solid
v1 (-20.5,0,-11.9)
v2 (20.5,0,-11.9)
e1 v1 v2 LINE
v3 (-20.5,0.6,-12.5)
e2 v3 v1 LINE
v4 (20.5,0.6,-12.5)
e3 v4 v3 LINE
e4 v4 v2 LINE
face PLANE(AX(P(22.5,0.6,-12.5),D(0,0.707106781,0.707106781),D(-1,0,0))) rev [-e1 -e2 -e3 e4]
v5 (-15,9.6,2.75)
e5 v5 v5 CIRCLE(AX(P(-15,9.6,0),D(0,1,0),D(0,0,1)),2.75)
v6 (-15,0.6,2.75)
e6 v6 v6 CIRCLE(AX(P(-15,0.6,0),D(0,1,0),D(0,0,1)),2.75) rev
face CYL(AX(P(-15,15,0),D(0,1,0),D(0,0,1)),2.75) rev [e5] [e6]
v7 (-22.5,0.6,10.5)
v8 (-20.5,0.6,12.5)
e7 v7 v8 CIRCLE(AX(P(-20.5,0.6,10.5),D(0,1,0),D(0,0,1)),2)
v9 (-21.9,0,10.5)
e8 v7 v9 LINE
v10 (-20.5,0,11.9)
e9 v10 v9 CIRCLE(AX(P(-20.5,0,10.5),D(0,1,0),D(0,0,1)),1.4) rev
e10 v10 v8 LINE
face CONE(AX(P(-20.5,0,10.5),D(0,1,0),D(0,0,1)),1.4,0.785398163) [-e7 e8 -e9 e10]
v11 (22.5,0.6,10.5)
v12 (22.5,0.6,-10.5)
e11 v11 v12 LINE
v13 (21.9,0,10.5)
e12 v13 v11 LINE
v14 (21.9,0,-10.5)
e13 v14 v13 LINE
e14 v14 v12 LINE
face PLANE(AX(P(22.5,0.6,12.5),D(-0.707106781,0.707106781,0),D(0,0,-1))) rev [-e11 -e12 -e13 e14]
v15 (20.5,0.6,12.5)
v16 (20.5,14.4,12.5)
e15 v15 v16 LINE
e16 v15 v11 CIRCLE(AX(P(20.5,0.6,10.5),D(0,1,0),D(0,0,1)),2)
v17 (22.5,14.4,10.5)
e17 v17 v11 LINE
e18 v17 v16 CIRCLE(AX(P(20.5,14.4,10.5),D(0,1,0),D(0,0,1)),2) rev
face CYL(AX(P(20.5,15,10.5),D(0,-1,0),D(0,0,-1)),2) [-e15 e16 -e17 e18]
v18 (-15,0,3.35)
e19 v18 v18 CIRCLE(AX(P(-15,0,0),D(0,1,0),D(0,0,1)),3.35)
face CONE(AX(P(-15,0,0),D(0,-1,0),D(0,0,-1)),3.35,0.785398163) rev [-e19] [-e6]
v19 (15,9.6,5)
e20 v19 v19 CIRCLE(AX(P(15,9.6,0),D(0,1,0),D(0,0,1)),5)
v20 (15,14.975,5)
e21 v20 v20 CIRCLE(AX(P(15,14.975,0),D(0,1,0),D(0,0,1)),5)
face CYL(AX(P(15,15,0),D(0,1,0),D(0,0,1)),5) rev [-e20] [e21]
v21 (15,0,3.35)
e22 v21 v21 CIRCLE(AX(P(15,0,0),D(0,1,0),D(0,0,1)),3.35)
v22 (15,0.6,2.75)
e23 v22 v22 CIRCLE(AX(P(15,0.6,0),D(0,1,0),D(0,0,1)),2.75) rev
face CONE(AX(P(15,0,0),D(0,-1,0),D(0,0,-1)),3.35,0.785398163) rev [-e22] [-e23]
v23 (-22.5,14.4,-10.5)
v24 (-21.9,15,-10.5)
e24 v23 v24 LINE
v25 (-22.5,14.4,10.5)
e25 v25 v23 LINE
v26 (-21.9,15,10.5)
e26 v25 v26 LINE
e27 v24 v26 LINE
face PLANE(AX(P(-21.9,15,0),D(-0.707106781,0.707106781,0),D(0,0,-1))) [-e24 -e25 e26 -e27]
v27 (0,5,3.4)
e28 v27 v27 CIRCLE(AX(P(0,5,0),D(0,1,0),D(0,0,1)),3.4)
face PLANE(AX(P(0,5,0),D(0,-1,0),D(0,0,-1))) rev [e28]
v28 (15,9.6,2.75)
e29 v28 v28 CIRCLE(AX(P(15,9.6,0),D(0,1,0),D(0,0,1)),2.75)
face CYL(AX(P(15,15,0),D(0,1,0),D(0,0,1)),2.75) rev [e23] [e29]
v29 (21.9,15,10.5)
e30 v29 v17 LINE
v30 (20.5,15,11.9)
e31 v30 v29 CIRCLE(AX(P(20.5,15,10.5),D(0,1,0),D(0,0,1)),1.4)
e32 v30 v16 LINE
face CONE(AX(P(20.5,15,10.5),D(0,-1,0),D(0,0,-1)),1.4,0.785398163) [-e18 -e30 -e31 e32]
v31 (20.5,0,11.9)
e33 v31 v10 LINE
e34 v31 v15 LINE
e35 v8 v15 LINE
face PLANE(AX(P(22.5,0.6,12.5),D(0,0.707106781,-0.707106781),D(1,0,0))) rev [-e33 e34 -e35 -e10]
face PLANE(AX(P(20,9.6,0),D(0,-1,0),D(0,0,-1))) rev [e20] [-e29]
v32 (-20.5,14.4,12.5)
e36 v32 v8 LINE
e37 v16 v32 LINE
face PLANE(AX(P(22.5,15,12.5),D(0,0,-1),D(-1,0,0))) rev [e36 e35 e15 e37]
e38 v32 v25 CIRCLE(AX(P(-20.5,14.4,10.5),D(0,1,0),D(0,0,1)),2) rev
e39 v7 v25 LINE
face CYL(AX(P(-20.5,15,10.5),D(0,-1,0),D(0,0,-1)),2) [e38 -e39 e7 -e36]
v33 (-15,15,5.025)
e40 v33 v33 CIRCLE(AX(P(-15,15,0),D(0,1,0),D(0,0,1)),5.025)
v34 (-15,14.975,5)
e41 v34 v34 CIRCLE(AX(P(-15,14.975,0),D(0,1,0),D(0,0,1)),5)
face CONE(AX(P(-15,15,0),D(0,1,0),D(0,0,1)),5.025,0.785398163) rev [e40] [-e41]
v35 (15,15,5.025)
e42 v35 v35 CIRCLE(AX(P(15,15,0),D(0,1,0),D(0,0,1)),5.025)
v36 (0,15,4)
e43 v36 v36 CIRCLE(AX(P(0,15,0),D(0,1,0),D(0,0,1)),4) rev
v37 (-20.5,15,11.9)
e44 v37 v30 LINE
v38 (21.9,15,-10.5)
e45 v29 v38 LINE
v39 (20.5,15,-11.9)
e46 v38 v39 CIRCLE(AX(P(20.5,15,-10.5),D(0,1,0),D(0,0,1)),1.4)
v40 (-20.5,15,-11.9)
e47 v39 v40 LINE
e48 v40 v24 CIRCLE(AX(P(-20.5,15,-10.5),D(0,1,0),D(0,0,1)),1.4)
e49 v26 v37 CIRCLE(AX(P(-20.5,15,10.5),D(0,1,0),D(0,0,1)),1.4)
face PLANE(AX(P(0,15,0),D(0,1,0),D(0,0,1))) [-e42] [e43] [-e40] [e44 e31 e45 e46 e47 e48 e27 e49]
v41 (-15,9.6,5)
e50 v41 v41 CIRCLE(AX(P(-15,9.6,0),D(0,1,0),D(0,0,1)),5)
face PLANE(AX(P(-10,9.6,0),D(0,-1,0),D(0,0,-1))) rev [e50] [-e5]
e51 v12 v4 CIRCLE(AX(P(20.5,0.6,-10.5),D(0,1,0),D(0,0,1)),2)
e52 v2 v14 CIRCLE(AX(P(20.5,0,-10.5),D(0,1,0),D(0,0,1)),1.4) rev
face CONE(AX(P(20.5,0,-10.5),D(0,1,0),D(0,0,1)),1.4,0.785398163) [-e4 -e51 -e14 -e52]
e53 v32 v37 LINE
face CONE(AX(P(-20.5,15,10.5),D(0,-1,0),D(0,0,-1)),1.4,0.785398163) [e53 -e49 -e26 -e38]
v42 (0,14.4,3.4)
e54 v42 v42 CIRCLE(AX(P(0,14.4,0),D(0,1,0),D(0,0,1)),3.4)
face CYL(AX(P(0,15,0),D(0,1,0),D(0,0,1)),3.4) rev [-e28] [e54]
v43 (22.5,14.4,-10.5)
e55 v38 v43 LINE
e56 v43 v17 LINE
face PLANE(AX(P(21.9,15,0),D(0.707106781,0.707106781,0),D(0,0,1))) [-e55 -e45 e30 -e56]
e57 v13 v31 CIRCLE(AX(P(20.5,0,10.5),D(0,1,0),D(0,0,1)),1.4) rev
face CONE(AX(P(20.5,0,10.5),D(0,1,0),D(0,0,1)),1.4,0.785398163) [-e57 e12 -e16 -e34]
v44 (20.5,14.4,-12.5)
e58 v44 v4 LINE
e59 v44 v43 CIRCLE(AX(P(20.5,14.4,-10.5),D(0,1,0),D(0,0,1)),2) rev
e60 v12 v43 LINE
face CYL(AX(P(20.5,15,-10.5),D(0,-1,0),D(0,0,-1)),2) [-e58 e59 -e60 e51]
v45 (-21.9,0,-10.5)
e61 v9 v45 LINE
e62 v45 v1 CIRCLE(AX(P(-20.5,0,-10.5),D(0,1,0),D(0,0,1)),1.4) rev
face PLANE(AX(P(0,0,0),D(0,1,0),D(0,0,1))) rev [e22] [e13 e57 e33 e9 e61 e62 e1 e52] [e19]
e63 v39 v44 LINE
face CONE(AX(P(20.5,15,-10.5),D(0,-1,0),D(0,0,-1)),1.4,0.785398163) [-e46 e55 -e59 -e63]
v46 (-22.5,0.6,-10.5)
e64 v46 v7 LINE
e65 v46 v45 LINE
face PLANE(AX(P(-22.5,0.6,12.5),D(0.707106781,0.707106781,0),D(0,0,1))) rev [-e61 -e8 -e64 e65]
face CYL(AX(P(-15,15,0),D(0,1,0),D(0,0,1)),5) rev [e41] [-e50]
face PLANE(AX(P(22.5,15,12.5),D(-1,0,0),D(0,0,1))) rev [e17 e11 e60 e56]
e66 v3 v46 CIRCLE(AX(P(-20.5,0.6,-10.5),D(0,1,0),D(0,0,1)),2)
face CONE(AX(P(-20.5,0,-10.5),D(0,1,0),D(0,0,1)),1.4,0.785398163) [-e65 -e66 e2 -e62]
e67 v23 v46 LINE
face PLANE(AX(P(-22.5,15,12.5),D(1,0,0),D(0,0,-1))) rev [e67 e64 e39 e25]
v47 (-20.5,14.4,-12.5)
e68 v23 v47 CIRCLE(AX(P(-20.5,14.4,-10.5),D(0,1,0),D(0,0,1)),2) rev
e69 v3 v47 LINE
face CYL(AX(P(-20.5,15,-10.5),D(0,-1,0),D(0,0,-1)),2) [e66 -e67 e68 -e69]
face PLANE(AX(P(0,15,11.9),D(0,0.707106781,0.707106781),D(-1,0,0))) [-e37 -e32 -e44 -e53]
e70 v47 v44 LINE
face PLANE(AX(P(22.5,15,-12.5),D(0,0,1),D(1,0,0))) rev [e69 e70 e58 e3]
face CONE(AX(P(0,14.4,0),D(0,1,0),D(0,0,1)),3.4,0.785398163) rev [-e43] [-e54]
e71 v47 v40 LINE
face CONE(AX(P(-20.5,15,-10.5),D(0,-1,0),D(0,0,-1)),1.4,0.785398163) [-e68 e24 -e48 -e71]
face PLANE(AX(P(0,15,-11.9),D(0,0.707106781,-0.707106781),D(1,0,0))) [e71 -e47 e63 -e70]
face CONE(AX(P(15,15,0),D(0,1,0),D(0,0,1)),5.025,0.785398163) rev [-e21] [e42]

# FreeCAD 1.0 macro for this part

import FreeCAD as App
import Part
import Sketcher

V = App.Vector
Q = App.Units.Quantity


def edges_at(feature, points):
    """Names of the edges that pass closest to the given points."""
    edges = feature.Shape.Edges
    near = lambda p: min(range(len(edges)), key=lambda i: edges[i].distToShape(Part.Vertex(*p))[0])
    return sorted({f"Edge{near(p) + 1}" for p in points})

doc = App.newDocument("Part")
body = doc.addObject("PartDesign::Body", "Body")

sketch1 = doc.addObject("Sketcher::SketchObject", "Sketch")
body.addObject(sketch1)
sketch1.AttachmentSupport = (doc.XZ_Plane, [""])
sketch1.MapMode = "FlatFace"
sketch1.addGeometry(Part.LineSegment(V(-22, -12, 0), V(-22, 12, 0)), False)
sketch1.addGeometry(Part.LineSegment(V(-22, 12, 0), V(22, 12, 0)), False)
sketch1.addGeometry(Part.LineSegment(V(22, 12, 0), V(22, -12, 0)), False)
sketch1.addGeometry(Part.LineSegment(V(22, -12, 0), V(-22, -12, 0)), False)
sketch1.addConstraint(Sketcher.Constraint("Coincident", 0, 2, 1, 1))
sketch1.addConstraint(Sketcher.Constraint("Coincident", 1, 2, 2, 1))
sketch1.addConstraint(Sketcher.Constraint("Coincident", 2, 2, 3, 1))
sketch1.addConstraint(Sketcher.Constraint("Coincident", 3, 2, 0, 1))
sketch1.addConstraint(Sketcher.Constraint("Vertical", 0))
sketch1.addConstraint(Sketcher.Constraint("Horizontal", 1))
sketch1.addConstraint(Sketcher.Constraint("Vertical", 2))
sketch1.addConstraint(Sketcher.Constraint("Horizontal", 3))
sketch1.addConstraint(Sketcher.Constraint("Symmetric", 0, 2, 2, 2, -1, 1))
sketch1.addConstraint(Sketcher.Constraint("DistanceX", 1, 1, 1, 2, 45.0))
sketch1.addConstraint(Sketcher.Constraint("DistanceY", 0, 1, 0, 2, 25.0))
pad1 = doc.addObject("PartDesign::Pad", "Pad")
body.addObject(pad1)
pad1.Profile = sketch1
pad1.Length = 15
pad1.Reversed = True

sketch2 = doc.addObject("Sketcher::SketchObject", "Sketch001")
body.addObject(sketch2)
sketch2.AttachmentSupport = (doc.XZ_Plane, [""])
sketch2.MapMode = "FlatFace"
sketch2.AttachmentOffset = App.Placement(V(0, 0, -15), App.Rotation())
sketch2.addGeometry(Part.Circle(V(0, 0, 0), V(0, 0, 1), 3.4), False)
sketch2.addConstraint(Sketcher.Constraint("Coincident", 0, 3, -1, 1))
sketch2.addConstraint(Sketcher.Constraint("Diameter", 0, 6.8))
doc.recompute()
hole = doc.addObject("PartDesign::Hole", "Hole")
body.addObject(hole)
hole.Profile = sketch2
hole.ThreadType = "None"
hole.Diameter = 6.8
hole.DepthType = "Dimension"
hole.Depth = 10
hole.DrillPoint = "Flat"
hole.Reversed = True

sketch3 = doc.addObject("Sketcher::SketchObject", "Sketch002")
body.addObject(sketch3)
sketch3.AttachmentSupport = (doc.YZ_Plane, [""])
sketch3.MapMode = "FlatFace"
sketch3.AttachmentOffset = App.Placement(V(0, 0, 15), App.Rotation())
sketch3.addGeometry(Part.LineSegment(V(0, 0, 0), V(15, 0, 0)), False)
sketch3.addGeometry(Part.LineSegment(V(15, 0, 0), V(15, 5.025, 0)), False)
sketch3.addGeometry(Part.LineSegment(V(15, 5.025, 0), V(14.975, 5, 0)), False)
sketch3.addGeometry(Part.LineSegment(V(14.975, 5, 0), V(9.6, 5, 0)), False)
sketch3.addGeometry(Part.LineSegment(V(9.6, 5, 0), V(9.6, 2.75, 0)), False)
sketch3.addGeometry(Part.LineSegment(V(9.6, 2.75, 0), V(0, 2.75, 0)), False)
sketch3.addGeometry(Part.LineSegment(V(0, 2.75, 0), V(0, 0, 0)), False)
sketch3.addConstraint(Sketcher.Constraint("Coincident", 0, 2, 1, 1))
sketch3.addConstraint(Sketcher.Constraint("Coincident", 1, 2, 2, 1))
sketch3.addConstraint(Sketcher.Constraint("Coincident", 2, 2, 3, 1))
sketch3.addConstraint(Sketcher.Constraint("Coincident", 3, 2, 4, 1))
sketch3.addConstraint(Sketcher.Constraint("Coincident", 4, 2, 5, 1))
sketch3.addConstraint(Sketcher.Constraint("Coincident", 5, 2, 6, 1))
sketch3.addConstraint(Sketcher.Constraint("Coincident", 6, 2, 0, 1))
sketch3.addConstraint(Sketcher.Constraint("Horizontal", 0))
sketch3.addConstraint(Sketcher.Constraint("Vertical", 1))
sketch3.addConstraint(Sketcher.Constraint("Horizontal", 3))
sketch3.addConstraint(Sketcher.Constraint("Vertical", 4))
sketch3.addConstraint(Sketcher.Constraint("Horizontal", 5))
sketch3.addConstraint(Sketcher.Constraint("Vertical", 6))
sketch3.addConstraint(Sketcher.Constraint("Coincident", 6, 2, -1, 1))
sketch3.addConstraint(Sketcher.Constraint("DistanceX", 0, 1, 0, 2, 15.0))
sketch3.addConstraint(Sketcher.Constraint("Angle", 2, Q("-135 deg")))
sketch3.addConstraint(Sketcher.Constraint("DistanceX", 5, 2, 5, 1, 9.6))
sketch3.addConstraint(Sketcher.Constraint("DistanceY", -1, 1, 2, 2, 5.0))
sketch3.addConstraint(Sketcher.Constraint("DistanceY", 4, 2, 4, 1, 2.25))
sketch3.addConstraint(Sketcher.Constraint("DistanceX", 3, 2, 3, 1, 5.375))
groove = doc.addObject("PartDesign::Groove", "Groove")
body.addObject(groove)
groove.Profile = sketch3
groove.ReferenceAxis = (sketch3, ["H_Axis"])
groove.Angle = 360
doc.recompute()

linearpattern = doc.addObject("PartDesign::LinearPattern", "LinearPattern")
body.addObject(linearpattern)
linearpattern.Originals = [groove]
linearpattern.Direction = (doc.X_Axis, [""])
linearpattern.Mode = "offset"
linearpattern.Offset = 30
linearpattern.Occurrences = 2
linearpattern.Reversed = True
body.Tip = linearpattern
doc.recompute()

fillet = doc.addObject("PartDesign::Fillet", "Fillet")
body.addObject(fillet)
fillet.Base = (linearpattern, edges_at(linearpattern, [
    (-22.5, 7.5, -12.5),
    (22.5, 7.5, -12.5),
    (22.5, 7.5, 12.5),
    (-22.5, 7.5, 12.5),
]))
fillet.Radius = 2
doc.recompute()

chamfer = doc.addObject("PartDesign::Chamfer", "Chamfer")
body.addObject(chamfer)
chamfer.Base = (fillet, edges_at(fillet, [
    (3.4, 15, 0),
    (15, 0, -2.75),
    (-15, 0, -2.75),
    (-22.5, 0, 0),
    (-22.5, 15, 0),
    (0, 0, -12.5),
    (22.5, 0, 0),
    (0, 0, 12.5),
    (21.914, 0, 11.914),
    (21.914, 0, -11.914),
    (-21.914, 0, 11.914),
    (-21.914, 0, -11.914),
    (0, 15, -12.5),
    (0, 15, 12.5),
    (22.5, 15, 0),
    (21.914, 15, 11.914),
    (21.914, 15, -11.914),
    (-21.914, 15, 11.914),
    (-21.914, 15, -11.914),
]))
chamfer.Size = 0.6

doc.recompute()
